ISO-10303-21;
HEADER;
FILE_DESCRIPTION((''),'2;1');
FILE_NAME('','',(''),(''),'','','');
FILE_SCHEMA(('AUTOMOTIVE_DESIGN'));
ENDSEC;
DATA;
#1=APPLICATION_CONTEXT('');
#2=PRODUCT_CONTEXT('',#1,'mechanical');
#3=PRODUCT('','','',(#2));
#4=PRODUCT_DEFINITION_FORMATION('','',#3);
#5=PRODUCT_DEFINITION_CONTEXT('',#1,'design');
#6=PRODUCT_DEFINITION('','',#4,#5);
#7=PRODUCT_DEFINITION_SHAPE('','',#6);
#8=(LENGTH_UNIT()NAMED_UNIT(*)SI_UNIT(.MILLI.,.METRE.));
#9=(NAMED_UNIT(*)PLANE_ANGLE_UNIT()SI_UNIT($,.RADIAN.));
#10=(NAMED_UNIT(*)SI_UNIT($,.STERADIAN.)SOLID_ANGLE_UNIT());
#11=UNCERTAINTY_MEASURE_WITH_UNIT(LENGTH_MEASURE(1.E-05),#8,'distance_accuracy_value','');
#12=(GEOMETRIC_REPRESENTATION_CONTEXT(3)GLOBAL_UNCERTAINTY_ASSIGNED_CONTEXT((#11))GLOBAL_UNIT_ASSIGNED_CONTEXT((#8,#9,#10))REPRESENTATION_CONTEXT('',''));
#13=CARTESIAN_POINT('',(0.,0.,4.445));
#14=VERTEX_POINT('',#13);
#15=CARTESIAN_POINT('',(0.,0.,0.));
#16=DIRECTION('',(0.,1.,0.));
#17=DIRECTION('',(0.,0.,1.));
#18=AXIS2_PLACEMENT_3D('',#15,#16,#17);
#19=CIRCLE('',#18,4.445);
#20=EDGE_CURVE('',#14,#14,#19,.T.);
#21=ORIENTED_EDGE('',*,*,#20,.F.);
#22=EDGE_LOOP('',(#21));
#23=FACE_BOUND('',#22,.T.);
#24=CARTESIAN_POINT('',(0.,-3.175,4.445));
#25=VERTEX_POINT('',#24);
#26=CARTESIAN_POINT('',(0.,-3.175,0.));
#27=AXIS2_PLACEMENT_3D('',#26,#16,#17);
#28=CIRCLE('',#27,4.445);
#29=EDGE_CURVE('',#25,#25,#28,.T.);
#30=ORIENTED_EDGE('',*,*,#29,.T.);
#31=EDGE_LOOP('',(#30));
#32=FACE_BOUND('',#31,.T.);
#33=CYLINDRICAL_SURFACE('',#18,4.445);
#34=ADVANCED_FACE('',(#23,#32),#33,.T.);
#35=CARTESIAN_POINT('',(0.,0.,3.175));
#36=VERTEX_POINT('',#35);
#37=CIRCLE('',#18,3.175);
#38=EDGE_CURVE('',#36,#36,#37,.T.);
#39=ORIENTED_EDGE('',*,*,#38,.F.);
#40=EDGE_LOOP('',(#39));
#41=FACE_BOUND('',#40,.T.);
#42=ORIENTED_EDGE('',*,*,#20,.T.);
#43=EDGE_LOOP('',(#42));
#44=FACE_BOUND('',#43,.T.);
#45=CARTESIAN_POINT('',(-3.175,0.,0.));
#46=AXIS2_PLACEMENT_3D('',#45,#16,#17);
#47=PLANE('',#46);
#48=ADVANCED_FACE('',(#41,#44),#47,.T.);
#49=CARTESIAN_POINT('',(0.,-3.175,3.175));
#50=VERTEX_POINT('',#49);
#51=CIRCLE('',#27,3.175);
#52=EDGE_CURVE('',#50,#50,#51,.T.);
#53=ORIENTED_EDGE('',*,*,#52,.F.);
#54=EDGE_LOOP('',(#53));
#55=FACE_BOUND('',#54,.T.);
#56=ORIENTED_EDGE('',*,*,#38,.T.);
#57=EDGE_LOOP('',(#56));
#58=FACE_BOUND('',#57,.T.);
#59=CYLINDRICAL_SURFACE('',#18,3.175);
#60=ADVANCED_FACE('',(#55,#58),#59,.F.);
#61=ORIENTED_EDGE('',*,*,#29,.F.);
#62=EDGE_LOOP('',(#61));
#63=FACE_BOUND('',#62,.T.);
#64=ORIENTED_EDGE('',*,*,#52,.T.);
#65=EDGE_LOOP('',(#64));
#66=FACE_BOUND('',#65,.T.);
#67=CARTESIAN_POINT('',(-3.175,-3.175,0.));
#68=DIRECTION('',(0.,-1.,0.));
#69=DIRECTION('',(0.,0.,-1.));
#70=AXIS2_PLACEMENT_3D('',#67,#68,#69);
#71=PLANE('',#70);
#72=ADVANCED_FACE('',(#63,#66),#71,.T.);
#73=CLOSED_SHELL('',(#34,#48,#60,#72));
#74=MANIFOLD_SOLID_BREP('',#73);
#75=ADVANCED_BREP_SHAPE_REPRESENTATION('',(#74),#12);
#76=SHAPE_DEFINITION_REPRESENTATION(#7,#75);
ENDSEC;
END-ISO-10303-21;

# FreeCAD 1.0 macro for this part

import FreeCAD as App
import Part
import Sketcher

V = App.Vector
Q = App.Units.Quantity


def add_polygon(sketch, points):
    """Adds a closed chain of lines whose ends are joined by coincident constraints."""
    first, n = sketch.GeometryCount, len(points)
    for a, b in zip(points, points[1:] + points[:1]):
        sketch.addGeometry(Part.LineSegment(App.Vector(*a, 0), App.Vector(*b, 0)), False)
    for i in range(n):
        sketch.addConstraint(Sketcher.Constraint("Coincident", first + i, 2, first + (i + 1) % n, 1))

doc = App.newDocument("Part")
body = doc.addObject("PartDesign::Body", "Body")

sketch1 = body.newObject("Sketcher::SketchObject", "Sketch")
sketch1.AttachmentSupport = (doc.getObject("XY_Plane"), [""])
sketch1.MapMode = "FlatFace"
add_polygon(sketch1, [(-4.4, 0), (-4.4, -3.2), (-3.2, -3.2), (-3.2, 0)])
sketch1.addConstraint(Sketcher.Constraint("Vertical", 0))
sketch1.addConstraint(Sketcher.Constraint("Horizontal", 1))
sketch1.addConstraint(Sketcher.Constraint("Vertical", 2))
sketch1.addConstraint(Sketcher.Constraint("Horizontal", 3))
sketch1.addConstraint(Sketcher.Constraint("PointOnObject", 2, 2, -1))
sketch1.addConstraint(Sketcher.Constraint("DistanceX", 1, 1, 1, 2, Q("0.05 in")))
sketch1.addConstraint(Sketcher.Constraint("DistanceY", 0, 2, 0, 1, Q("0.125 in")))
sketch1.addConstraint(Sketcher.Constraint("DistanceX", 0, 2, -1, 1, Q("0.175 in")))
revolution = body.newObject("PartDesign::Revolution", "Revolution")
revolution.Profile = sketch1
revolution.ReferenceAxis = (sketch1, ["V_Axis"])
revolution.Angle = 360

doc.recompute()
